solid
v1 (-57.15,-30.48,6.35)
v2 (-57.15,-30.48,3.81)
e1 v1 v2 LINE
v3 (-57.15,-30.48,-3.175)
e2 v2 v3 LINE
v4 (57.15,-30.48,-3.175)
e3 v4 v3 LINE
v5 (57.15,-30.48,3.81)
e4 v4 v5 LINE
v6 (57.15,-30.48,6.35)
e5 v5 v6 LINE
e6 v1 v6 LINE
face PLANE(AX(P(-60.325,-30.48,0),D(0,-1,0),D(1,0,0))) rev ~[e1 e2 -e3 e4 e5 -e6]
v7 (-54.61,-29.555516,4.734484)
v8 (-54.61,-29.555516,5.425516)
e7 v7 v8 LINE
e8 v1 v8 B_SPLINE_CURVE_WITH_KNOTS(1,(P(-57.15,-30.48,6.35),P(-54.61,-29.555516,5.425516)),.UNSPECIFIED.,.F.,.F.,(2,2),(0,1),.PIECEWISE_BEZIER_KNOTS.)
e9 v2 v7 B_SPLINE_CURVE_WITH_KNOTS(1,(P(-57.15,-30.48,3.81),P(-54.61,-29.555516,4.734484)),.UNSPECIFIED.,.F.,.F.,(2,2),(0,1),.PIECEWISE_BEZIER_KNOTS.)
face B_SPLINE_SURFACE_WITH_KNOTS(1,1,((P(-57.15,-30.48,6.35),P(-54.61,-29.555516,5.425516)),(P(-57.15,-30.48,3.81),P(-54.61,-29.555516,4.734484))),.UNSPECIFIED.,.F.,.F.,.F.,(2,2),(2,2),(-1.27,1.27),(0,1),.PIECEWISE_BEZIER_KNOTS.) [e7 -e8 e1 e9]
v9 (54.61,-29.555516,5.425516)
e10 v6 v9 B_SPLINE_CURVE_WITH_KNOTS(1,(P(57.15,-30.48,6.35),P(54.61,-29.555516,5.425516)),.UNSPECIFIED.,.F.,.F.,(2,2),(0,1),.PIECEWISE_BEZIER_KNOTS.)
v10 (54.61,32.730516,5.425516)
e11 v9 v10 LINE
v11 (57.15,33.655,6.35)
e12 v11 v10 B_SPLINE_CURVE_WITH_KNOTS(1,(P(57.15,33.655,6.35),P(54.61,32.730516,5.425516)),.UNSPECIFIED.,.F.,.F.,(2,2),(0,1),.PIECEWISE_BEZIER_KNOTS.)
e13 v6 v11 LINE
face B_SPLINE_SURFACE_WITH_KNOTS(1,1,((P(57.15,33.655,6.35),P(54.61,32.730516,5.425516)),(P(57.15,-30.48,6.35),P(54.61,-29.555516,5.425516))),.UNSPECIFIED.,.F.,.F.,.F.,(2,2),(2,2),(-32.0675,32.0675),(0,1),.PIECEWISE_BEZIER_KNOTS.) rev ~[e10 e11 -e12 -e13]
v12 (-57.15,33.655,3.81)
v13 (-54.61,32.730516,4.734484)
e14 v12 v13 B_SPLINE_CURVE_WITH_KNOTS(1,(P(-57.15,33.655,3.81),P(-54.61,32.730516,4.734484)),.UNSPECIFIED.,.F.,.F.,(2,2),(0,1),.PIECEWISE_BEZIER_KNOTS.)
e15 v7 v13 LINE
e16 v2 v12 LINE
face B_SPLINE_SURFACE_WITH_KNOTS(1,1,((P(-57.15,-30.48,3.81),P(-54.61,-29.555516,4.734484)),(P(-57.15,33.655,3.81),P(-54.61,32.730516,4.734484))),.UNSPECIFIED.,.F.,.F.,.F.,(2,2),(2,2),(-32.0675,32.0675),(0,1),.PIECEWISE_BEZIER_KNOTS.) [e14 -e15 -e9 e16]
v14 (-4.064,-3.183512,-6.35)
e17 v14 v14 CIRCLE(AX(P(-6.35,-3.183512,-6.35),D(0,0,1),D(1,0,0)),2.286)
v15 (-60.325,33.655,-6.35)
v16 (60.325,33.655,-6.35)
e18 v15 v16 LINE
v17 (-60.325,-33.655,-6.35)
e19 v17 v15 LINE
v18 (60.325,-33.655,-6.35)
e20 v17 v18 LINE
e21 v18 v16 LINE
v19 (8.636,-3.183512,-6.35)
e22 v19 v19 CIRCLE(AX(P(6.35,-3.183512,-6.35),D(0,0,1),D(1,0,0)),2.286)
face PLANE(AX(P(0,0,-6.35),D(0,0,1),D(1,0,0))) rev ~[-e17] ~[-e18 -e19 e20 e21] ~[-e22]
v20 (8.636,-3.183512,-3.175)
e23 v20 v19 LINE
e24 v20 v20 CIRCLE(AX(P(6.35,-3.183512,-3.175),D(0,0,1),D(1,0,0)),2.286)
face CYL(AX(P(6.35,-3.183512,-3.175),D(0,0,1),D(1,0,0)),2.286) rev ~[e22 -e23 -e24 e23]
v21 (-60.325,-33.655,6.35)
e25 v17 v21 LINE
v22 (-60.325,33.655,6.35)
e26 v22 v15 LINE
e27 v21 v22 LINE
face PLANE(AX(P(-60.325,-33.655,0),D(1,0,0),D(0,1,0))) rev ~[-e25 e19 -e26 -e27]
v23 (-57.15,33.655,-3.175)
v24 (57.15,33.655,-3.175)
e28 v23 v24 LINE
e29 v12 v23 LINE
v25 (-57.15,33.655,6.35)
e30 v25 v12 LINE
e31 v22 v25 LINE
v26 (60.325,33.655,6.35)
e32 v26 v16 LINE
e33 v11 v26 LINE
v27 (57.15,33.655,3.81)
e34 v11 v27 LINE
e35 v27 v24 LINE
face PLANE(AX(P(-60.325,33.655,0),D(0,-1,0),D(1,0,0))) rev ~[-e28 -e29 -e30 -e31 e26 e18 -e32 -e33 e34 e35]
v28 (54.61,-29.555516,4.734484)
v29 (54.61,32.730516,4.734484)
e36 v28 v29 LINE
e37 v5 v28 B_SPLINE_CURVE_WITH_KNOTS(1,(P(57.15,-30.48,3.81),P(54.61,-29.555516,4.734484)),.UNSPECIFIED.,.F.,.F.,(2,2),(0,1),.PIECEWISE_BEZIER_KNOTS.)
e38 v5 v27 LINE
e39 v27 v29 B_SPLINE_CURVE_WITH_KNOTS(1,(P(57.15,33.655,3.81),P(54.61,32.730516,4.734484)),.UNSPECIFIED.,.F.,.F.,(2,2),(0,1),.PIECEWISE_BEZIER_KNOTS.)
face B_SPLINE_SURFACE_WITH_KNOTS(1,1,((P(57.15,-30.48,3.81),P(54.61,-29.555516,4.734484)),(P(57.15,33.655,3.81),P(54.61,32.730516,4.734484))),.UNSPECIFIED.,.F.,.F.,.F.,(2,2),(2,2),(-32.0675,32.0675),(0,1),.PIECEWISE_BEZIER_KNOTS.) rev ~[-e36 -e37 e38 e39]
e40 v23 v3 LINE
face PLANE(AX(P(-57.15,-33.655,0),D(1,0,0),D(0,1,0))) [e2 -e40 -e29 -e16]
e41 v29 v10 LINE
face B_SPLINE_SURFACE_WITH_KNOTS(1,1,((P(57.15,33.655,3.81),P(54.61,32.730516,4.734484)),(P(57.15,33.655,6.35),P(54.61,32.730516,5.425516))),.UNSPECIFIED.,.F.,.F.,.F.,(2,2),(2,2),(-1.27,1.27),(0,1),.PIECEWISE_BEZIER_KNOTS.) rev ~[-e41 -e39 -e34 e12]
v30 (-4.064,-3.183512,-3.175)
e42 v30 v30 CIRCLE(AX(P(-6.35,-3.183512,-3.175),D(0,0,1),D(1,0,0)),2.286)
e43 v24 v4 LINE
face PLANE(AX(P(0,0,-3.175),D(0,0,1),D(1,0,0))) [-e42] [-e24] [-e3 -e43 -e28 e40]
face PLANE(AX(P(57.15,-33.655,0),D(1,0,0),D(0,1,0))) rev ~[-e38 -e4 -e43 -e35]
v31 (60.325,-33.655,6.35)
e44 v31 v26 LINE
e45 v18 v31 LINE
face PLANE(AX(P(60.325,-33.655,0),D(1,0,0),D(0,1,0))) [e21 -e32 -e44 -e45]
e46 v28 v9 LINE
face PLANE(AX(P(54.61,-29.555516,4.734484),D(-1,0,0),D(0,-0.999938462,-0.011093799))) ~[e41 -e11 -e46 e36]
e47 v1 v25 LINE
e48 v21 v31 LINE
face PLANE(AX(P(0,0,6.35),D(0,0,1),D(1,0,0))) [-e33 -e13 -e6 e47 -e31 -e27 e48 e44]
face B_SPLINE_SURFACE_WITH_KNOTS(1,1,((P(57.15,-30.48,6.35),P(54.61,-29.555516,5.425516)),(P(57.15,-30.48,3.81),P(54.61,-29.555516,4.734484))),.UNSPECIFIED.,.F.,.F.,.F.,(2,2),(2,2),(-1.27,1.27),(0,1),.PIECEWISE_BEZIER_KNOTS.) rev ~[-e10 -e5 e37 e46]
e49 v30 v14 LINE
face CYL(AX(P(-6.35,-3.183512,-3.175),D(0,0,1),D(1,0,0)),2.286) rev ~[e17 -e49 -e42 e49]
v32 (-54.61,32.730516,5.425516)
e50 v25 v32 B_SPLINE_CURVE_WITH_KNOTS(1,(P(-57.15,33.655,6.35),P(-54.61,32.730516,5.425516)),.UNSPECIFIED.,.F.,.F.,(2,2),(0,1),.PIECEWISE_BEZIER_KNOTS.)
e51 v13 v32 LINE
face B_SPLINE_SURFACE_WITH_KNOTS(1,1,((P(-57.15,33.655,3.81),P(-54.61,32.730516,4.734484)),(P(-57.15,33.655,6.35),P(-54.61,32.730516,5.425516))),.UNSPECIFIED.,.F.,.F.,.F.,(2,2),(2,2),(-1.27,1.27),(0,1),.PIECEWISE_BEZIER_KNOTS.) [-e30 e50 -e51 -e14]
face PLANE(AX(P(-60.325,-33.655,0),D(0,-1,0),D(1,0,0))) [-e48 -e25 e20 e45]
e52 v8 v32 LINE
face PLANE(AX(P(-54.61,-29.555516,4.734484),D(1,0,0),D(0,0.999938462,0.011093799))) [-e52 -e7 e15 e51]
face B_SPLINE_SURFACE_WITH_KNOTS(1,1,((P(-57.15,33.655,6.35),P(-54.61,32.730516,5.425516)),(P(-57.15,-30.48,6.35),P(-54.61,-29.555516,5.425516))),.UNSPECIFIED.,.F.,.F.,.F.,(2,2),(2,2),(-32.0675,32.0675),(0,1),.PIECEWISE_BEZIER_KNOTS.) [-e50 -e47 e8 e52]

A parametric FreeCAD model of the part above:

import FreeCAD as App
import Part
import Sketcher
from FreeCAD import Vector
Q = App.Units.Quantity


def faces_at(feature, points):
    """Names of the faces that lie closest to the given points."""
    faces = feature.Shape.Faces
    near = lambda p: min(range(len(faces)), key=lambda i: faces[i].distToShape(Part.Vertex(*p))[0])
    return sorted({f"Face{near(p) + 1}" for p in points})


def add_polygon(sketch, points):
    """Adds a closed chain of lines whose ends are joined by coincident constraints."""
    first, n = sketch.GeometryCount, len(points)
    for a, b in zip(points, points[1:] + points[:1]):
        sketch.addGeometry(Part.LineSegment(App.Vector(*a, 0), App.Vector(*b, 0)), False)
    for i in range(n):
        sketch.addConstraint(Sketcher.Constraint("Coincident", first + i, 2, first + (i + 1) % n, 1))

doc = App.newDocument("Part")
params = doc.addObject("Spreadsheet::Sheet", "Params")
for row, (alias, value) in enumerate([
    ("sketch1_width", "4.75 in"),
    ("sketch1_height", "2.65 in"),
    ("pad1_length", "0.5 in"),
    ("thickness_wall", "0.125 in"),
    ("sketch2_height", "0.1 in"),
    ("sketch2_width", "2.525 in"),
    ("pad2_length", "0.1 in"),
    ("pad2_taper", "-20 deg"),
    ("sketch3_diameter", "0.18 in"),
    ("pocket1_length", "1 in"),
], start=1):
    params.set(f"A{row}", alias)
    params.set(f"B{row}", "=" + value)
    params.setAlias(f"B{row}", alias)

body = doc.addObject("PartDesign::Body", "Body")

# Sketch on XY plane
sketch1 = doc.addObject("Sketcher::SketchObject", "Sketch")
body.addObject(sketch1)
sketch1.AttachmentSupport = (doc.XY_Plane, [""])
sketch1.MapMode = "FlatFace"
add_polygon(sketch1, [(-60.325, 33.655), (-60.325, -33.655), (60.325, -33.655), (60.325, 33.655)])  # lines 0-3
sketch1.addConstraint(Sketcher.Constraint("Vertical", 0))
sketch1.addConstraint(Sketcher.Constraint("Horizontal", 1))
sketch1.addConstraint(Sketcher.Constraint("Vertical", 2))
sketch1.addConstraint(Sketcher.Constraint("Horizontal", 3))
sketch1.addConstraint(Sketcher.Constraint("Symmetric", 0, 2, 2, 2, -1, 1))
sketch1.addConstraint(Sketcher.Constraint("DistanceX", 1, 1, 1, 2, Q("4.75 in")))
sketch1.addConstraint(Sketcher.Constraint("DistanceY", 0, 2, 0, 1, Q("2.65 in")))
sketch1.setExpression("Constraints[9]", "Params.sketch1_width")
sketch1.setExpression("Constraints[10]", "Params.sketch1_height")
pad1 = doc.addObject("PartDesign::Pad", "Pad")
body.addObject(pad1)
pad1.Profile = sketch1
pad1.setExpression("Length", "Params.pad1_length")
pad1.Midplane = True
doc.recompute()

thickness = doc.addObject("PartDesign::Thickness", "Thickness")
body.addObject(thickness)
thickness.Base = (pad1, faces_at(pad1, [(0, 0, 6.35), (0, 33.655, 0)]))
thickness.setExpression("Value", "Params.thickness_wall")
thickness.Reversed = True
thickness.Join = "Arc"

# Sketch on YZ plane
sketch2 = doc.addObject("Sketcher::SketchObject", "Sketch001")
body.addObject(sketch2)
sketch2.AttachmentSupport = (doc.YZ_Plane, [""])
sketch2.MapMode = "FlatFace"
sketch2.AttachmentOffset = App.Placement(Vector(0, 0, -2.25 * 25.4), App.Rotation())
add_polygon(sketch2, [(-30.48, 6.35), (-30.48, 3.81), (33.655, 3.81), (33.655, 6.35)])  # lines 0-3
sketch2.addConstraint(Sketcher.Constraint("Vertical", 0))
sketch2.addConstraint(Sketcher.Constraint("Horizontal", 1))
sketch2.addConstraint(Sketcher.Constraint("Vertical", 2))
sketch2.addConstraint(Sketcher.Constraint("Horizontal", 3))
sketch2.addConstraint(Sketcher.Constraint("DistanceY", 0, 2, 0, 1, Q("0.1 in")))
sketch2.addConstraint(Sketcher.Constraint("DistanceX", 0, 2, -1, 1, Q("1.2 in")))
sketch2.addConstraint(Sketcher.Constraint("DistanceX", 1, 1, 1, 2, Q("2.525 in")))
sketch2.addConstraint(Sketcher.Constraint("DistanceY", -1, 1, 0, 2, Q("0.15 in")))
sketch2.setExpression("Constraints[8]", "Params.sketch2_height")
sketch2.setExpression("Constraints[10]", "Params.sketch2_width")
pad2 = doc.addObject("PartDesign::Pad", "Pad001")
body.addObject(pad2)
pad2.Profile = sketch2
pad2.setExpression("Length", "Params.pad2_length")
pad2.setExpression("TaperAngle", "Params.pad2_taper")
body2 = doc.addObject("PartDesign::Body", "Body001")
doc.recompute()

body2.BaseFeature = body
doc.recompute()

mirroring = doc.addObject("Part::Mirroring", "Mirroring")
mirroring.Source = body
mirroring.Base = Vector(0, 0, 0)
mirroring.Normal = Vector(1, 0, 0)
body3 = doc.addObject("PartDesign::Body", "Body002")
body3.BaseFeature = mirroring
boolean = doc.addObject("PartDesign::Boolean", "Boolean")
body2.addObject(boolean)
boolean.Type = "Fuse"
boolean.addObjects([body3])
doc.recompute()

# Sketch on XY plane
sketch3 = doc.addObject("Sketcher::SketchObject", "Sketch002")
body2.addObject(sketch3)
sketch3.AttachmentSupport = (doc.getObject("XY_Plane001"), [""])
sketch3.MapMode = "FlatFace"
sketch3.AttachmentOffset = App.Placement(Vector(0, 0, -0.125 * 25.4), App.Rotation())
sketch3.addGeometry(Part.Circle(Vector(-6.35, -3.183512, 0), Vector(0, 0, 1), 2.286), False)
sketch3.addGeometry(Part.Circle(Vector(6.35, -3.183512, 0), Vector(0, 0, 1), 2.286), False)
sketch3.addConstraint(Sketcher.Constraint("Equal", 0, 1))
sketch3.addConstraint(Sketcher.Constraint("Symmetric", 0, 3, 1, 3, -2))
sketch3.addConstraint(Sketcher.Constraint("Diameter", 0, Q("0.18 in")))
sketch3.addConstraint(Sketcher.Constraint("DistanceX", 0, 3, 1, 3, Q("0.5 in")))
sketch3.addConstraint(Sketcher.Constraint("DistanceY", 0, 3, -1, 1, 3.183512))
sketch3.setExpression("Constraints[2]", "Params.sketch3_diameter")
pocket1 = doc.addObject("PartDesign::Pocket", "Pocket")
body2.addObject(pocket1)
pocket1.Profile = sketch3
pocket1.setExpression("Length", "Params.pocket1_length")
mirroring.Visibility = False

doc.recompute()
